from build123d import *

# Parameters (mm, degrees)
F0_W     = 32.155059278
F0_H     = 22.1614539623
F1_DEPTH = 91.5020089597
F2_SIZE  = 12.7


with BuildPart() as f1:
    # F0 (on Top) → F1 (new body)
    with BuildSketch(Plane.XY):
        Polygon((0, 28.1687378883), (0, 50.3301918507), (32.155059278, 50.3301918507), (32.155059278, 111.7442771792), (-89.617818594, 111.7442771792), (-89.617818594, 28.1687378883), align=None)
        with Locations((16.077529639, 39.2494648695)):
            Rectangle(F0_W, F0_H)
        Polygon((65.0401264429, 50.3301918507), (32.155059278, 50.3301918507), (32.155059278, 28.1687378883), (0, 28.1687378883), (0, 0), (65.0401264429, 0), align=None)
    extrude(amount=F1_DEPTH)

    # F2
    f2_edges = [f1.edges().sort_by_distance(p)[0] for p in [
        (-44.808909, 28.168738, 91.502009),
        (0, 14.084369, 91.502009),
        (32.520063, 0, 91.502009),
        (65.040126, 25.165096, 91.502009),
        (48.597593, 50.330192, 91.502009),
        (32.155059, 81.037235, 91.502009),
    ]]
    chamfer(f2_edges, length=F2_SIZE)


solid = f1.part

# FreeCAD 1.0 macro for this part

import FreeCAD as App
import Part
import Sketcher

V = App.Vector
Q = App.Units.Quantity


def edges_at(feature, points):
    """Names of the edges that pass closest to the given points."""
    edges = feature.Shape.Edges
    near = lambda p: min(range(len(edges)), key=lambda i: edges[i].distToShape(Part.Vertex(*p))[0])
    return sorted({f"Edge{near(p) + 1}" for p in points})

doc = App.newDocument("Part")
body = doc.addObject("PartDesign::Body", "Body")

sketch1 = doc.addObject("Sketcher::SketchObject", "Sketch")
body.addObject(sketch1)
sketch1.AttachmentSupport = (doc.XY_Plane, [""])
sketch1.MapMode = "FlatFace"
sketch1.addGeometry(Part.LineSegment(V(32, 112, 0), V(-90, 112, 0)), False)
sketch1.addGeometry(Part.LineSegment(V(-90, 112, 0), V(-90, 28, 0)), False)
sketch1.addGeometry(Part.LineSegment(V(-90, 28, 0), V(0, 28, 0)), False)
sketch1.addGeometry(Part.LineSegment(V(0, 28, 0), V(0, 0, 0)), False)
sketch1.addGeometry(Part.LineSegment(V(0, 0, 0), V(65, 0, 0)), False)
sketch1.addGeometry(Part.LineSegment(V(65, 0, 0), V(65, 50, 0)), False)
sketch1.addGeometry(Part.LineSegment(V(65, 50, 0), V(32, 50, 0)), False)
sketch1.addGeometry(Part.LineSegment(V(32, 50, 0), V(32, 112, 0)), False)
sketch1.addConstraint(Sketcher.Constraint("Coincident", 0, 2, 1, 1))
sketch1.addConstraint(Sketcher.Constraint("Coincident", 1, 2, 2, 1))
sketch1.addConstraint(Sketcher.Constraint("Coincident", 2, 2, 3, 1))
sketch1.addConstraint(Sketcher.Constraint("Coincident", 3, 2, 4, 1))
sketch1.addConstraint(Sketcher.Constraint("Coincident", 4, 2, 5, 1))
sketch1.addConstraint(Sketcher.Constraint("Coincident", 5, 2, 6, 1))
sketch1.addConstraint(Sketcher.Constraint("Coincident", 6, 2, 7, 1))
sketch1.addConstraint(Sketcher.Constraint("Coincident", 7, 2, 0, 1))
sketch1.addConstraint(Sketcher.Constraint("Horizontal", 0))
sketch1.addConstraint(Sketcher.Constraint("Vertical", 1))
sketch1.addConstraint(Sketcher.Constraint("Horizontal", 2))
sketch1.addConstraint(Sketcher.Constraint("Vertical", 3))
sketch1.addConstraint(Sketcher.Constraint("Horizontal", 4))
sketch1.addConstraint(Sketcher.Constraint("Vertical", 5))
sketch1.addConstraint(Sketcher.Constraint("Horizontal", 6))
sketch1.addConstraint(Sketcher.Constraint("Vertical", 7))
sketch1.addConstraint(Sketcher.Constraint("Coincident", 3, 2, -1, 1))
sketch1.addConstraint(Sketcher.Constraint("DistanceX", 2, 1, 2, 2, Q("89.617819 mm")))
sketch1.addConstraint(Sketcher.Constraint("DistanceY", 1, 2, 1, 1, Q("83.575539 mm")))
sketch1.addConstraint(Sketcher.Constraint("DistanceY", 5, 1, 5, 2, Q("50.330192 mm")))
sketch1.addConstraint(Sketcher.Constraint("DistanceX", 0, 2, 0, 1, Q("121.772878 mm")))
sketch1.addConstraint(Sketcher.Constraint("DistanceX", 4, 1, 4, 2, Q("65.040126 mm")))
sketch1.addConstraint(Sketcher.Constraint("DistanceY", 3, 2, 3, 1, Q("28.168738 mm")))
pad1 = doc.addObject("PartDesign::Pad", "Pad")
body.addObject(pad1)
pad1.Profile = sketch1
pad1.Length = 91.502009
doc.recompute()

chamfer = doc.addObject("PartDesign::Chamfer", "Chamfer")
body.addObject(chamfer)
chamfer.Base = (pad1, edges_at(pad1, [
    (-44.809, 28.169, 91.502),
    (0, 14.084, 91.502),
    (32.52, 0, 91.502),
    (65.04, 25.165, 91.502),
    (48.598, 50.33, 91.502),
    (32.155, 81.037, 91.502),
]))
chamfer.Size = Q("0.5 in")

doc.recompute()
